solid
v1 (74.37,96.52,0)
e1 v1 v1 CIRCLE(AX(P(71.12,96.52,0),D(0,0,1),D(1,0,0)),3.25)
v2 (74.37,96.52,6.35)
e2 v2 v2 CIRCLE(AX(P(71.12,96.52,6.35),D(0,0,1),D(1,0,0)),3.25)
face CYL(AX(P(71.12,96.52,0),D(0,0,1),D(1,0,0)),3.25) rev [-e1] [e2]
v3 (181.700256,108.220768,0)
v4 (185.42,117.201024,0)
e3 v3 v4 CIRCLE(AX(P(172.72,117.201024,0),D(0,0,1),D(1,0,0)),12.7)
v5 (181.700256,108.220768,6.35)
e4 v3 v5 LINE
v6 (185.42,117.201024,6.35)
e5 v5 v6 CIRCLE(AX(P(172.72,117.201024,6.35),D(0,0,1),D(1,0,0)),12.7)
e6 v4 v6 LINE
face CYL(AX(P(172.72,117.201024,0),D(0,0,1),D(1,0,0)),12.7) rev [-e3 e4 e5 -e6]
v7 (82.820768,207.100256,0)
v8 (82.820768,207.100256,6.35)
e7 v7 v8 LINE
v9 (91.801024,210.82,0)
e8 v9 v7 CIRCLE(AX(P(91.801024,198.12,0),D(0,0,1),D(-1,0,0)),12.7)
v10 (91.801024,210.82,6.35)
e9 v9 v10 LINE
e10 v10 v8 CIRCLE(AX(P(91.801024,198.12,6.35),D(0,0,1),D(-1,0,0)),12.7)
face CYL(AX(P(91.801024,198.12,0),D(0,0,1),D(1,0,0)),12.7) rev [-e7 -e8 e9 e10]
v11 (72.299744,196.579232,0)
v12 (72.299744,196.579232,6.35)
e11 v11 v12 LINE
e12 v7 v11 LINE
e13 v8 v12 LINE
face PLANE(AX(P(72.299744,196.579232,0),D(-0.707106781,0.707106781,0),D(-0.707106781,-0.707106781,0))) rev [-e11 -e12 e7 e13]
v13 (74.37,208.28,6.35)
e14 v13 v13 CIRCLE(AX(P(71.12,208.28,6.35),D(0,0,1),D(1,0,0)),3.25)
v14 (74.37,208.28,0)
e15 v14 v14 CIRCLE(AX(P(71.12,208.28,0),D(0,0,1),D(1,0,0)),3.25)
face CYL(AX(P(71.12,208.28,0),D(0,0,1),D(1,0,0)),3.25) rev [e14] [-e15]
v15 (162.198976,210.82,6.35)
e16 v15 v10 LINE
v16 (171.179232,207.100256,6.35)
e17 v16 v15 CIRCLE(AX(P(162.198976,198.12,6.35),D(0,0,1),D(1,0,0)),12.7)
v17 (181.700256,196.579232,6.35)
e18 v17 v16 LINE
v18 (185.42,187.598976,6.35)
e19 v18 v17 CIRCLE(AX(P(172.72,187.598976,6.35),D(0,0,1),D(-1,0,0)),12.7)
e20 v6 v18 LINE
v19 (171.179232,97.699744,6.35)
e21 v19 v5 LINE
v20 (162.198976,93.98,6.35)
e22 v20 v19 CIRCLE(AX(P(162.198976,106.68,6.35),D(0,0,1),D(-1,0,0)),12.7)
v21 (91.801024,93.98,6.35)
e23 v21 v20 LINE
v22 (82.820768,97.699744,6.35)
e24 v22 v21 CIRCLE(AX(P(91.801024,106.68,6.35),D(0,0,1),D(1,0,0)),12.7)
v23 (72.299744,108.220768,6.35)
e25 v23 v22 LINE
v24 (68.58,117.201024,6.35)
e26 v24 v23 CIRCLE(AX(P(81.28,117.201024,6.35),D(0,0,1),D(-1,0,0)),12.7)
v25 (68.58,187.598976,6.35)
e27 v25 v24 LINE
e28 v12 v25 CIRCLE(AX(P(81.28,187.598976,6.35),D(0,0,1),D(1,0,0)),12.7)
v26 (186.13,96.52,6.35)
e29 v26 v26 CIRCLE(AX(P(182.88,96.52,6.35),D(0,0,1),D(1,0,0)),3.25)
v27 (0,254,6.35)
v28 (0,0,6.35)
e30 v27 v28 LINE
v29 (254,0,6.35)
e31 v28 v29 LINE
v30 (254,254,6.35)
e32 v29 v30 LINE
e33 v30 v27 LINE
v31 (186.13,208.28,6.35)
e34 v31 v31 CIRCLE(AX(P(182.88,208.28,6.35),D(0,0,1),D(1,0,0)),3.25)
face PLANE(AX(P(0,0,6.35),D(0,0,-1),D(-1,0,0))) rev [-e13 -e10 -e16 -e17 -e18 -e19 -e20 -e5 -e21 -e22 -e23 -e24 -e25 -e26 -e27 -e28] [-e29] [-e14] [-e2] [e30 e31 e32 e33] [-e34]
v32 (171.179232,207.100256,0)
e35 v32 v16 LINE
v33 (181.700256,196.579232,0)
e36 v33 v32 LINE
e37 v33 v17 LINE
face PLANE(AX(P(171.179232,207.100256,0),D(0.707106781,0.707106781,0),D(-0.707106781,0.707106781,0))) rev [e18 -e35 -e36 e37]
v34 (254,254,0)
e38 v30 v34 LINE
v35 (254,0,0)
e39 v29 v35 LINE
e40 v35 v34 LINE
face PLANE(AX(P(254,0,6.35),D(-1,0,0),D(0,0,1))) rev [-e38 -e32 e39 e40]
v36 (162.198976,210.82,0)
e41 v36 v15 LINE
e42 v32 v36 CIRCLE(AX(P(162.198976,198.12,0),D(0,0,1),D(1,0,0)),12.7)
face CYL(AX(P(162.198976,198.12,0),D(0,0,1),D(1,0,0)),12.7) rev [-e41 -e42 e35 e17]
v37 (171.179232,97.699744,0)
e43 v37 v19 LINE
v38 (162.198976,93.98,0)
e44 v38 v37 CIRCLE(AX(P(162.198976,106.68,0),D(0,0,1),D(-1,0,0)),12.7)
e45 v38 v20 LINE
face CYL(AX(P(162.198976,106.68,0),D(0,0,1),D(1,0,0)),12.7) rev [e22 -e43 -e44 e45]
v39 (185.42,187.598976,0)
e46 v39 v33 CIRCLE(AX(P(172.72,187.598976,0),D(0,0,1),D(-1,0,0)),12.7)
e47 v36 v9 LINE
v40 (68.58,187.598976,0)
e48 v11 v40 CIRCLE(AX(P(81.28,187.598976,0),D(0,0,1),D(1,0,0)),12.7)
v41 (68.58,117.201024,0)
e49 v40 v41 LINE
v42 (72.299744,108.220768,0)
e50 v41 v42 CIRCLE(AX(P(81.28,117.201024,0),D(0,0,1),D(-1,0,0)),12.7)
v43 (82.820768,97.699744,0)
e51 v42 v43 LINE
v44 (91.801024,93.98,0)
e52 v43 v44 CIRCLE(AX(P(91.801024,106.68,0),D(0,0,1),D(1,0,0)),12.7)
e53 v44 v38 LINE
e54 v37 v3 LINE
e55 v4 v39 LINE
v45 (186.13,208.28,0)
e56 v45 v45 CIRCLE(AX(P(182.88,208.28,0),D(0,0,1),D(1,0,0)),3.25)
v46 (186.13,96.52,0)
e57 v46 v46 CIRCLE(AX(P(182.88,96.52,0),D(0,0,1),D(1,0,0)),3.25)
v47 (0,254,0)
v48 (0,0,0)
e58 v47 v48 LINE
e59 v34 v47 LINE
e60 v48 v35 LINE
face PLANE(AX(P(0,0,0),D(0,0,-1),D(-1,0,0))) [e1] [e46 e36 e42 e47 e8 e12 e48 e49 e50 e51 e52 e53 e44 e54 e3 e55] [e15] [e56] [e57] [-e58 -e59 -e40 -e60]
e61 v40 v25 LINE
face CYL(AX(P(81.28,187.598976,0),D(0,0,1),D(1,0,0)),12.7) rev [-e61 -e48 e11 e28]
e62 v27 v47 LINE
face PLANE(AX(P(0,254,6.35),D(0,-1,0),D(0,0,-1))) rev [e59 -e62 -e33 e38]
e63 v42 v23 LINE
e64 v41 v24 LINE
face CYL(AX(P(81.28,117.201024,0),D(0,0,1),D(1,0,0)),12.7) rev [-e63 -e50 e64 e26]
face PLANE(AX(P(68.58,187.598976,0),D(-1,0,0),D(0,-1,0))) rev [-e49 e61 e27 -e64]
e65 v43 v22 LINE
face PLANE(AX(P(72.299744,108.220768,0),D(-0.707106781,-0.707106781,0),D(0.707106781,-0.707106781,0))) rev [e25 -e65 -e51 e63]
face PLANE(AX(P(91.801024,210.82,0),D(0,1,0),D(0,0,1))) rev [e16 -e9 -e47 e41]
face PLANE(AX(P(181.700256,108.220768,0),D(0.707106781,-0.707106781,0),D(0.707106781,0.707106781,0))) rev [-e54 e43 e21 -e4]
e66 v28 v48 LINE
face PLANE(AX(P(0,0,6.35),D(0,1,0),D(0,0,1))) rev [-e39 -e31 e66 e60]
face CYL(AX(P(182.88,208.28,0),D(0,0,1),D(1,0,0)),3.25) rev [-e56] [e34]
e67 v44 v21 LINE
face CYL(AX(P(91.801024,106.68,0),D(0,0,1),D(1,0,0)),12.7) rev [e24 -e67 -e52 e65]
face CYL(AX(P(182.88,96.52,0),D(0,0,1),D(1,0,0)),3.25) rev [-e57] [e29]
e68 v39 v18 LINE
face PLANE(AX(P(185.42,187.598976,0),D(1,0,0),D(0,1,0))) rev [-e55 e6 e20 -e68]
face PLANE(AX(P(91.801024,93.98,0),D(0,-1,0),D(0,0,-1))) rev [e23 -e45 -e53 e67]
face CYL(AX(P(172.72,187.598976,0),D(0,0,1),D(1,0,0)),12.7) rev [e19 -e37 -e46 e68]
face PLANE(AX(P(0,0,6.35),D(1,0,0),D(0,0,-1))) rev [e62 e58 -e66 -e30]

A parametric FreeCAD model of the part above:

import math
import FreeCAD as App
import Part
import Sketcher
Q = App.Units.Quantity

doc = App.newDocument("Part")
body = doc.addObject("PartDesign::Body", "Body")

sketch1 = body.newObject("Sketcher::SketchObject", "Sketch")
sketch1.AttachmentSupport = (doc.getObject("XY_Plane"), [""])
sketch1.MapMode = "FlatFace"
sketch1.addGeometry(Part.LineSegment(App.Vector(0, 254, 0), App.Vector(0, 0, 0)), False)
sketch1.addGeometry(Part.LineSegment(App.Vector(0, 0, 0), App.Vector(254, 0, 0)), False)
sketch1.addGeometry(Part.LineSegment(App.Vector(254, 0, 0), App.Vector(254, 254, 0)), False)
sketch1.addGeometry(Part.LineSegment(App.Vector(254, 254, 0), App.Vector(0, 254, 0)), False)
sketch1.addConstraint(Sketcher.Constraint("Coincident", 0, 2, 1, 1))
sketch1.addConstraint(Sketcher.Constraint("Coincident", 1, 2, 2, 1))
sketch1.addConstraint(Sketcher.Constraint("Coincident", 2, 2, 3, 1))
sketch1.addConstraint(Sketcher.Constraint("Coincident", 3, 2, 0, 1))
sketch1.addConstraint(Sketcher.Constraint("Vertical", 0))
sketch1.addConstraint(Sketcher.Constraint("Horizontal", 1))
sketch1.addConstraint(Sketcher.Constraint("Vertical", 2))
sketch1.addConstraint(Sketcher.Constraint("Horizontal", 3))
sketch1.addConstraint(Sketcher.Constraint("Coincident", 0, 2, -1, 1))
sketch1.addConstraint(Sketcher.Constraint("Equal", 3, 0))
sketch1.addConstraint(Sketcher.Constraint("DistanceX", 1, 1, 1, 2, Q("10 in")))
pad1 = body.newObject("PartDesign::Pad", "Pad")
pad1.Profile = sketch1
pad1.Length = Q("0.25 in")

sketch2 = body.newObject("Sketcher::SketchObject", "Sketch001")
sketch2.AttachmentSupport = (doc.getObject("XY_Plane"), [""])
sketch2.MapMode = "FlatFace"
sketch2.AttachmentOffset = App.Placement(App.Vector(0, 0, 0.25 * 25.4), App.Rotation())
sketch2.addGeometry(Part.Circle(App.Vector(71.1, 208.3, 0), App.Vector(0, 0, 1), 3.2), False)
sketch2.addGeometry(Part.Circle(App.Vector(182.9, 208.3, 0), App.Vector(0, 0, 1), 3.2), False)
sketch2.addGeometry(Part.Circle(App.Vector(182.9, 96.5, 0), App.Vector(0, 0, 1), 3.2), False)
sketch2.addGeometry(Part.Circle(App.Vector(71.1, 96.5, 0), App.Vector(0, 0, 1), 3.2), False)
sketch2.addGeometry(Part.LineSegment(App.Vector(82.8, 207.1, 0), App.Vector(72.3, 196.6, 0)), False)
sketch2.addGeometry(Part.ArcOfCircle(Part.Circle(App.Vector(81.3, 187.6, 0), App.Vector(0, 0, 1), 12.7), math.radians(135), math.radians(180)), False)
sketch2.addGeometry(Part.LineSegment(App.Vector(68.6, 187.6, 0), App.Vector(68.6, 117.2, 0)), False)
sketch2.addGeometry(Part.ArcOfCircle(Part.Circle(App.Vector(81.3, 117.2, 0), App.Vector(0, 0, 1), 12.7), math.radians(180), math.radians(225)), False)
sketch2.addGeometry(Part.LineSegment(App.Vector(72.3, 108.2, 0), App.Vector(82.8, 97.7, 0)), False)
sketch2.addGeometry(Part.ArcOfCircle(Part.Circle(App.Vector(91.8, 106.7, 0), App.Vector(0, 0, 1), 12.7), math.radians(-135), math.radians(-90)), False)
sketch2.addGeometry(Part.LineSegment(App.Vector(91.8, 94, 0), App.Vector(162.2, 94, 0)), False)
sketch2.addGeometry(Part.ArcOfCircle(Part.Circle(App.Vector(162.2, 106.7, 0), App.Vector(0, 0, 1), 12.7), math.radians(-90), math.radians(-45)), False)
sketch2.addGeometry(Part.LineSegment(App.Vector(171.2, 97.7, 0), App.Vector(181.7, 108.2, 0)), False)
sketch2.addGeometry(Part.ArcOfCircle(Part.Circle(App.Vector(172.7, 117.2, 0), App.Vector(0, 0, 1), 12.7), math.radians(-45), math.radians(0)), False)
sketch2.addGeometry(Part.LineSegment(App.Vector(185.4, 117.2, 0), App.Vector(185.4, 187.6, 0)), False)
sketch2.addGeometry(Part.ArcOfCircle(Part.Circle(App.Vector(172.7, 187.6, 0), App.Vector(0, 0, 1), 12.7), math.radians(0), math.radians(45)), False)
sketch2.addGeometry(Part.LineSegment(App.Vector(181.7, 196.6, 0), App.Vector(171.2, 207.1, 0)), False)
sketch2.addGeometry(Part.ArcOfCircle(Part.Circle(App.Vector(162.2, 198.1, 0), App.Vector(0, 0, 1), 12.7), math.radians(45), math.radians(90)), False)
sketch2.addGeometry(Part.LineSegment(App.Vector(162.2, 210.8, 0), App.Vector(91.8, 210.8, 0)), False)
sketch2.addGeometry(Part.ArcOfCircle(Part.Circle(App.Vector(91.8, 198.1, 0), App.Vector(0, 0, 1), 12.7), math.radians(90), math.radians(135)), False)
sketch2.addConstraint(Sketcher.Constraint("Tangent", 4, 2, 5, 1))
sketch2.addConstraint(Sketcher.Constraint("Tangent", 5, 2, 6, 1))
sketch2.addConstraint(Sketcher.Constraint("Tangent", 6, 2, 7, 1))
sketch2.addConstraint(Sketcher.Constraint("Tangent", 7, 2, 8, 1))
sketch2.addConstraint(Sketcher.Constraint("Tangent", 8, 2, 9, 1))
sketch2.addConstraint(Sketcher.Constraint("Tangent", 9, 2, 10, 1))
sketch2.addConstraint(Sketcher.Constraint("Tangent", 10, 2, 11, 1))
sketch2.addConstraint(Sketcher.Constraint("Tangent", 11, 2, 12, 1))
sketch2.addConstraint(Sketcher.Constraint("Tangent", 12, 2, 13, 1))
sketch2.addConstraint(Sketcher.Constraint("Tangent", 13, 2, 14, 1))
sketch2.addConstraint(Sketcher.Constraint("Tangent", 14, 2, 15, 1))
sketch2.addConstraint(Sketcher.Constraint("Tangent", 15, 2, 16, 1))
sketch2.addConstraint(Sketcher.Constraint("Tangent", 16, 2, 17, 1))
sketch2.addConstraint(Sketcher.Constraint("Tangent", 17, 2, 18, 1))
sketch2.addConstraint(Sketcher.Constraint("Tangent", 18, 2, 19, 1))
sketch2.addConstraint(Sketcher.Constraint("Tangent", 19, 2, 4, 1))
sketch2.addConstraint(Sketcher.Constraint("Vertical", 6))
sketch2.addConstraint(Sketcher.Constraint("Horizontal", 10))
sketch2.addConstraint(Sketcher.Constraint("Vertical", 14))
sketch2.addConstraint(Sketcher.Constraint("Horizontal", 18))
sketch2.addConstraint(Sketcher.Constraint("Equal", 0, 1))
sketch2.addConstraint(Sketcher.Constraint("Equal", 1, 2))
sketch2.addConstraint(Sketcher.Constraint("Equal", 2, 3))
sketch2.addConstraint(Sketcher.Constraint("Equal", 5, 7))
sketch2.addConstraint(Sketcher.Constraint("Equal", 7, 9))
sketch2.addConstraint(Sketcher.Constraint("Equal", 9, 11))
sketch2.addConstraint(Sketcher.Constraint("Equal", 11, 13))
sketch2.addConstraint(Sketcher.Constraint("Equal", 13, 15))
sketch2.addConstraint(Sketcher.Constraint("Equal", 15, 17))
sketch2.addConstraint(Sketcher.Constraint("Equal", 17, 19))
sketch2.addConstraint(Sketcher.Constraint("Perpendicular", 4, 8))
sketch2.addConstraint(Sketcher.Constraint("Perpendicular", 8, 12))
sketch2.addConstraint(Sketcher.Constraint("Perpendicular", 12, 16))
sketch2.addConstraint(Sketcher.Constraint("Horizontal", 0, 3, 1, 3))
sketch2.addConstraint(Sketcher.Constraint("Horizontal", 2, 3, 3, 3))
sketch2.addConstraint(Sketcher.Constraint("Horizontal", 7, 3, 13, 3))
sketch2.addConstraint(Sketcher.Constraint("Horizontal", 5, 3, 15, 3))
sketch2.addConstraint(Sketcher.Constraint("Horizontal", 8, 2, 11, 2))
sketch2.addConstraint(Sketcher.Constraint("Vertical", 1, 3, 2, 3))
sketch2.addConstraint(Sketcher.Constraint("Vertical", 0, 3, 3, 3))
sketch2.addConstraint(Sketcher.Constraint("Vertical", 11, 3, 17, 3))
sketch2.addConstraint(Sketcher.Constraint("Equal", 18, 6))
sketch2.addConstraint(Sketcher.Constraint("Radius", 5, Q("0.5 in")))
sketch2.addConstraint(Sketcher.Constraint("DistanceX", 5, 3, 1, 3, Q("4 in")))
sketch2.addConstraint(Sketcher.Constraint("DistanceY", 9, 3, 0, 3, Q("4 in")))
sketch2.addConstraint(Sketcher.Constraint("DistanceX", -1, 1, 0, 3, Q("2.8 in")))
sketch2.addConstraint(Sketcher.Constraint("DistanceY", -1, 1, 0, 3, Q("8.2 in")))
sketch2.addConstraint(Sketcher.Constraint("DistanceX", -1, 1, 1, 3, Q("7.2 in")))
sketch2.addConstraint(Sketcher.Constraint("DistanceY", -1, 1, 2, 3, Q("3.8 in")))
sketch2.addConstraint(Sketcher.Constraint("DistanceX", -1, 1, 13, 3, Q("6.8 in")))
sketch2.addConstraint(Sketcher.Constraint("Diameter", 0, Q("6.5 mm")))
sketch2.addConstraint(Sketcher.Constraint("DistanceX", 10, 1, 10, 2, Q("70.397951 mm")))
pocket1 = body.newObject("PartDesign::Pocket", "Pocket")
pocket1.Profile = sketch2
pocket1.Length = Q("0.25 in")

doc.recompute()
